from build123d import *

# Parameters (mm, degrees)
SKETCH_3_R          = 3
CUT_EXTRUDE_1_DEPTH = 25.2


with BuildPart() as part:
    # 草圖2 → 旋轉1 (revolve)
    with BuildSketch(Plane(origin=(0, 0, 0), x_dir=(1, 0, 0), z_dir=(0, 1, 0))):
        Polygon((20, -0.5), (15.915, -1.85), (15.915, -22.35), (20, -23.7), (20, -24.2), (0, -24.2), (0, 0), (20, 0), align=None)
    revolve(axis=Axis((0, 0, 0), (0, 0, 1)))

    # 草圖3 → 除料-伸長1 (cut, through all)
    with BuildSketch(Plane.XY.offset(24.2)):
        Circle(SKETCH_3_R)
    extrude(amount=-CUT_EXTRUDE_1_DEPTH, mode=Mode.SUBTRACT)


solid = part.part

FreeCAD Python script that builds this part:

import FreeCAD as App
import Part
import Sketcher

V = App.Vector
Q = App.Units.Quantity


def add_polygon(sketch, points):
    """Adds a closed chain of lines whose ends are joined by coincident constraints."""
    first, n = sketch.GeometryCount, len(points)
    for a, b in zip(points, points[1:] + points[:1]):
        sketch.addGeometry(Part.LineSegment(App.Vector(*a, 0), App.Vector(*b, 0)), False)
    for i in range(n):
        sketch.addConstraint(Sketcher.Constraint("Coincident", first + i, 2, first + (i + 1) % n, 1))

doc = App.newDocument("Part")
body = doc.addObject("PartDesign::Body", "Body")

sketch1 = body.newObject("Sketcher::SketchObject", "Sketch")
sketch1.AttachmentSupport = (doc.getObject("XZ_Plane"), [""])
sketch1.MapMode = "FlatFace"
add_polygon(sketch1, [(15.915, 1.85), (20, 0.5), (20, 0), (0, 0), (0, 24.2), (20, 24.2), (20, 23.7), (15.915, 22.35)])
sketch1.addConstraint(Sketcher.Constraint("Vertical", 1))
sketch1.addConstraint(Sketcher.Constraint("Horizontal", 2))
sketch1.addConstraint(Sketcher.Constraint("Vertical", 3))
sketch1.addConstraint(Sketcher.Constraint("Horizontal", 4))
sketch1.addConstraint(Sketcher.Constraint("Vertical", 5))
sketch1.addConstraint(Sketcher.Constraint("Vertical", 7))
sketch1.addConstraint(Sketcher.Constraint("Coincident", 2, 2, -1, 1))
sketch1.addConstraint(Sketcher.Constraint("Vertical", 1, 2, 4, 2))
sketch1.addConstraint(Sketcher.Constraint("Equal", 1, 5))
sketch1.addConstraint(Sketcher.Constraint("Equal", 0, 6))
sketch1.addConstraint(Sketcher.Constraint("DistanceX", 2, 2, 2, 1, Q("20 mm")))
sketch1.addConstraint(Sketcher.Constraint("DistanceY", 1, 2, 1, 1, Q("0.5 mm")))
sketch1.addConstraint(Sketcher.Constraint("DistanceY", 3, 1, 3, 2, Q("24.2 mm")))
sketch1.addConstraint(Sketcher.Constraint("DistanceY", 7, 2, 7, 1, Q("20.5 mm")))
sketch1.addConstraint(Sketcher.Constraint("DistanceX", -1, 1, 6, 2, Q("15.915 mm")))
revolution = body.newObject("PartDesign::Revolution", "Revolution")
revolution.Profile = sketch1
revolution.ReferenceAxis = (sketch1, ["V_Axis"])
revolution.Angle = 360

sketch2 = body.newObject("Sketcher::SketchObject", "Sketch001")
sketch2.AttachmentSupport = (doc.getObject("XY_Plane"), [""])
sketch2.MapMode = "FlatFace"
sketch2.AttachmentOffset = App.Placement(V(0, 0, 24.2), App.Rotation())
sketch2.addGeometry(Part.Circle(V(0, 0, 0), V(0, 0, 1), 3), False)
sketch2.addConstraint(Sketcher.Constraint("Coincident", 0, 3, -1, 1))
sketch2.addConstraint(Sketcher.Constraint("Diameter", 0, Q("6 mm")))
pocket1 = body.newObject("PartDesign::Pocket", "Pocket")
pocket1.Profile = sketch2
pocket1.Type = "ThroughAll"

doc.recompute()
